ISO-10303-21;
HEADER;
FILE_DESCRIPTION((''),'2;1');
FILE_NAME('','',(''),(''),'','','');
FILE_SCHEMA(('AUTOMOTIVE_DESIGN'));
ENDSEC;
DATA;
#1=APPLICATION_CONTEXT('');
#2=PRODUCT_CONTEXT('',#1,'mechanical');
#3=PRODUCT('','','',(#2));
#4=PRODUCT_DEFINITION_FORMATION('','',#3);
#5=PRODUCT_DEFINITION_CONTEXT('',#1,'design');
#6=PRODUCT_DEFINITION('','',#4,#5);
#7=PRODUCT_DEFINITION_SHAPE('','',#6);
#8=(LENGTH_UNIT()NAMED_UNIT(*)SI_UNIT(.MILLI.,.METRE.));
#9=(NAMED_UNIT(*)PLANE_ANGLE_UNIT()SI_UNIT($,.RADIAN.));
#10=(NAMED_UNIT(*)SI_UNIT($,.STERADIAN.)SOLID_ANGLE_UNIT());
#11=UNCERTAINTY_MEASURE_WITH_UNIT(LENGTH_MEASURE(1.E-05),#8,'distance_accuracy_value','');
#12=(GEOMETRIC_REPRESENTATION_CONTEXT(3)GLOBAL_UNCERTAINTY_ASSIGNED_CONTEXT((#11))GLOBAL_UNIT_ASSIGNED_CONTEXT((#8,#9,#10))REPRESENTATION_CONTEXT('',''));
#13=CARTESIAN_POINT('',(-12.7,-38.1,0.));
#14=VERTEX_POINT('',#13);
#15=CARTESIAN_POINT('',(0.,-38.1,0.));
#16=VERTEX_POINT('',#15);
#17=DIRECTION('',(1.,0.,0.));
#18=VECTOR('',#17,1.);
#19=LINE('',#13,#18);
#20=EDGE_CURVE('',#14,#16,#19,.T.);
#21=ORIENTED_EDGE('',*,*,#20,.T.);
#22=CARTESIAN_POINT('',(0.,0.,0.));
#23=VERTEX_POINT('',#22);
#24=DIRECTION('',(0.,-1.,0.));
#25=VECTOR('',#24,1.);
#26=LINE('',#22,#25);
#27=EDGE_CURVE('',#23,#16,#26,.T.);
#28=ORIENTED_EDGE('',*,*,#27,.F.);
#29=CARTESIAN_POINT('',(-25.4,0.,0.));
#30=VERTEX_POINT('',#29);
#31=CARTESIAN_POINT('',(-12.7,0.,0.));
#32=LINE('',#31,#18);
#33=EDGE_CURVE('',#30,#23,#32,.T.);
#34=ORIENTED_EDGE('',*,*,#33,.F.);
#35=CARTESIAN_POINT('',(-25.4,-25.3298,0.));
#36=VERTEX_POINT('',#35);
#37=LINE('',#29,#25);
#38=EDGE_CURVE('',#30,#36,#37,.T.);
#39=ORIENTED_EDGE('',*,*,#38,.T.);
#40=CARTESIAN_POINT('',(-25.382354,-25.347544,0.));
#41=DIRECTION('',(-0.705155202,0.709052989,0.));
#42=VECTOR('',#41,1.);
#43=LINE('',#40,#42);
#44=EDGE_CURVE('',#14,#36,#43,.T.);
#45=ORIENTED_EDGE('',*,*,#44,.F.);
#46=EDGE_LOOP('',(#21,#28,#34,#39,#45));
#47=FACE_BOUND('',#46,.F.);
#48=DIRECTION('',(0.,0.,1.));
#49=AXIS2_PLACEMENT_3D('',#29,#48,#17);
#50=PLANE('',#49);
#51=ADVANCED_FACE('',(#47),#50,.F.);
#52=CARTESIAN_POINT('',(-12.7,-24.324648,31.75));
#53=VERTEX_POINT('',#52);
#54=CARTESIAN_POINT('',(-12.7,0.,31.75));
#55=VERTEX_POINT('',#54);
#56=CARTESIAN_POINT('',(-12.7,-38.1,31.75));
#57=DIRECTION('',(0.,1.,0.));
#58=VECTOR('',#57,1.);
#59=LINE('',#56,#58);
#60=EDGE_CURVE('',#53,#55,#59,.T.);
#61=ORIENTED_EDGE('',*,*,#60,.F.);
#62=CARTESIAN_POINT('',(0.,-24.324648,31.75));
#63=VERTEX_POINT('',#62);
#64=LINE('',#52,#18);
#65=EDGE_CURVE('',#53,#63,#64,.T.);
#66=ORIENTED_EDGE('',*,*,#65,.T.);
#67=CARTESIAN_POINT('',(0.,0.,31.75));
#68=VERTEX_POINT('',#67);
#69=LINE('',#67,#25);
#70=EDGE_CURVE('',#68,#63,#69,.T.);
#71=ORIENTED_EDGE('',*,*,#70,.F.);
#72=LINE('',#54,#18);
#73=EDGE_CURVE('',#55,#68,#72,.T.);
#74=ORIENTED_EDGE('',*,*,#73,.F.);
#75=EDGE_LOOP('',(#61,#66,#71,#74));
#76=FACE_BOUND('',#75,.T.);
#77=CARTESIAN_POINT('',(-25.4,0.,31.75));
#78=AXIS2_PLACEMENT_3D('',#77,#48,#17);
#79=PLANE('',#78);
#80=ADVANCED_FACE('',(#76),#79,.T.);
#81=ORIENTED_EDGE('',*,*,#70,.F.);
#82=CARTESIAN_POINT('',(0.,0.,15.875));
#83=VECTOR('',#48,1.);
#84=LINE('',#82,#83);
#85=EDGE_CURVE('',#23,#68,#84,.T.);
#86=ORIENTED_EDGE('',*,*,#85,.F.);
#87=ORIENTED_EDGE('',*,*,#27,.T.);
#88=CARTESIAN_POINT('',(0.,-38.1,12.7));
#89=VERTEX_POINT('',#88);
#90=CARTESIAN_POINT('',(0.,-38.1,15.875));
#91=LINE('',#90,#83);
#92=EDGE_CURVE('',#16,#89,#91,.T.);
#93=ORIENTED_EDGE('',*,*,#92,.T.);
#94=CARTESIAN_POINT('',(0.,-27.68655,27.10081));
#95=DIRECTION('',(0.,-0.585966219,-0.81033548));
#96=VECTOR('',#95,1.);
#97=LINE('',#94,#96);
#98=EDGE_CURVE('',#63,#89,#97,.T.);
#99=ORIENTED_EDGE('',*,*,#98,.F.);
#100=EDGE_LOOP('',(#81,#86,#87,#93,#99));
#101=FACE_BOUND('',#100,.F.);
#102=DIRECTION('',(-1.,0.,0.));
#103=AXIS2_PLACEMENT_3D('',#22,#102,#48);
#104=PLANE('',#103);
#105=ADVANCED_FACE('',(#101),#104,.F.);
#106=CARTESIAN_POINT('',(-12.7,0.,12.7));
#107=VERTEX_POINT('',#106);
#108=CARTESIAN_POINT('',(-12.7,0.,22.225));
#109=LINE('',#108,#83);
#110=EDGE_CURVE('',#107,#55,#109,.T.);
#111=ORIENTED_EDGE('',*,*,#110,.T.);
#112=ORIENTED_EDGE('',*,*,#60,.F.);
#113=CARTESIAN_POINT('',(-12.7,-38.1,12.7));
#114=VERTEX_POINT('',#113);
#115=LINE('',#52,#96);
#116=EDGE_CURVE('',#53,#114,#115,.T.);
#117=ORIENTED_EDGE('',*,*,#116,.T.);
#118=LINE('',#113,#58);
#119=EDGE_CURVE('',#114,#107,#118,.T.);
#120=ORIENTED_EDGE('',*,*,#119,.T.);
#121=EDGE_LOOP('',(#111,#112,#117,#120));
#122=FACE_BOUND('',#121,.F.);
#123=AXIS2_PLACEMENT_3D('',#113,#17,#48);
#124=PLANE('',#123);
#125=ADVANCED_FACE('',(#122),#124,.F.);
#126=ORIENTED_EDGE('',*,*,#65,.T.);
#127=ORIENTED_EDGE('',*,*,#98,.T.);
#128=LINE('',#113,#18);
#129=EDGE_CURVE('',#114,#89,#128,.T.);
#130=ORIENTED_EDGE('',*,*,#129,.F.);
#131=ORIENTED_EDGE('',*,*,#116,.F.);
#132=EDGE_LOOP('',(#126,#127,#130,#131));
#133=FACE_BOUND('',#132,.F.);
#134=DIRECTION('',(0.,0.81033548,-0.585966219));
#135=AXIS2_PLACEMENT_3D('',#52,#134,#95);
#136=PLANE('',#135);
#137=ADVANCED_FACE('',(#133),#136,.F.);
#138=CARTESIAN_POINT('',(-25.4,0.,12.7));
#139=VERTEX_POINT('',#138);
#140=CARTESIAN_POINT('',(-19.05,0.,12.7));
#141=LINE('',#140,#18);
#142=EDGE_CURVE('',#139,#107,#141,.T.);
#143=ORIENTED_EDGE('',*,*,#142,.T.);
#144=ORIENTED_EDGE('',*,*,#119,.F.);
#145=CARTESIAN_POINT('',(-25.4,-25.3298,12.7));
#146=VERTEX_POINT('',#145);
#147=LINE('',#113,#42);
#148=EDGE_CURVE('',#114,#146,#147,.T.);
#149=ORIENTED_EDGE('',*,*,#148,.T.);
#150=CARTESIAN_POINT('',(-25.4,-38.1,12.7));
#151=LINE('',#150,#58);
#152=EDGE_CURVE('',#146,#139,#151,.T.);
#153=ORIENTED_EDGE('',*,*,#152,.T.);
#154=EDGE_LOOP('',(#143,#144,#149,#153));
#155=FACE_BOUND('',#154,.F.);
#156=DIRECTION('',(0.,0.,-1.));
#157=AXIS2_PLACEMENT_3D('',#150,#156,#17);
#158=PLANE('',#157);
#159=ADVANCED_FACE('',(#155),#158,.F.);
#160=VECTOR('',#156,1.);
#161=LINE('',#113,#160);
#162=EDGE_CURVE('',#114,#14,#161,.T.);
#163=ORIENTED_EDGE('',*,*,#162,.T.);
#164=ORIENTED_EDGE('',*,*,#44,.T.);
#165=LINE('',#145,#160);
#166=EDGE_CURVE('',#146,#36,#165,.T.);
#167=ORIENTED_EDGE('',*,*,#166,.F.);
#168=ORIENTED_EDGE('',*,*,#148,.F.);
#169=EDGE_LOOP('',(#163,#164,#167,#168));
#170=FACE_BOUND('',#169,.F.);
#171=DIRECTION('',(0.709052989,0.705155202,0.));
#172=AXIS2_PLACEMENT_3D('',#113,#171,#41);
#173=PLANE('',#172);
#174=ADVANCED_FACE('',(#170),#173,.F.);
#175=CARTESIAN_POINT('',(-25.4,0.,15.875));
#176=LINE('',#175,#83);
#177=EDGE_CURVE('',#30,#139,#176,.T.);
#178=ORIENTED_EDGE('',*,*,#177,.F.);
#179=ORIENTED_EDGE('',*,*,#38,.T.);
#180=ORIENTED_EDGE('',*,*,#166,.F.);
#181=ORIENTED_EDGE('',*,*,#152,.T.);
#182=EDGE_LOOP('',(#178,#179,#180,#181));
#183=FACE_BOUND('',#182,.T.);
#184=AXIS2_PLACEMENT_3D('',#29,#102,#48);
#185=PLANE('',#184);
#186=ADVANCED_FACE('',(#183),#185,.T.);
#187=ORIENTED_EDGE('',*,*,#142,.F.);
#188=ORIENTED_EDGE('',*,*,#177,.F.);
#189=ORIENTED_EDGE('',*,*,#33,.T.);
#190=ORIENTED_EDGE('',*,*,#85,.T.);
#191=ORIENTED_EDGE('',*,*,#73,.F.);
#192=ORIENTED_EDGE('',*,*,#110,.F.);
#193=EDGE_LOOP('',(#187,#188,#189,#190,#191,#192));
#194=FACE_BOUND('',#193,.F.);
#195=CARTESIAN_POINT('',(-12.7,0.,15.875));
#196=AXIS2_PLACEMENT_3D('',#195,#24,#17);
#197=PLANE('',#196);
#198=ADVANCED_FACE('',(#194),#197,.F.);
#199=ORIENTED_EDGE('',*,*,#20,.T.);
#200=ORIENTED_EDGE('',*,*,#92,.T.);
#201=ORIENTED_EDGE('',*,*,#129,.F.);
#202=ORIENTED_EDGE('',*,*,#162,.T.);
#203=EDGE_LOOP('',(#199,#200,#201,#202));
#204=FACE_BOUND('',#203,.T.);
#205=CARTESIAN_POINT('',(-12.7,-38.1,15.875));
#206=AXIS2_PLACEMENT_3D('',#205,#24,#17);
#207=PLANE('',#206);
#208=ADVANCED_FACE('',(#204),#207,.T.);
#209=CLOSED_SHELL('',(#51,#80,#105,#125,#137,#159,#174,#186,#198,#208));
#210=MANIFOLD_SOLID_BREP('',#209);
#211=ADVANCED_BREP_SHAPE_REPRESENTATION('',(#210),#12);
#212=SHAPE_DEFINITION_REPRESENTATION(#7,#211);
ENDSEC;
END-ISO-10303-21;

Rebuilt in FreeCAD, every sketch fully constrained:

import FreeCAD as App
import Part
import Sketcher
Q = App.Units.Quantity

doc = App.newDocument("Part")
body = doc.addObject("PartDesign::Body", "Body")

# Sketch on XZ plane
sketch1 = doc.addObject("Sketcher::SketchObject", "Sketch")
body.addObject(sketch1)
sketch1.AttachmentSupport = (doc.XZ_Plane, [""])
sketch1.MapMode = "FlatFace"
sketch1.addGeometry([
    Part.LineSegment(App.Vector(-25, 32, 0), App.Vector(-25, 0, 0)),
    Part.LineSegment(App.Vector(-25, 0, 0), App.Vector(0, 0, 0)),
    Part.LineSegment(App.Vector(0, 0, 0), App.Vector(0, 32, 0)),
    Part.LineSegment(App.Vector(0, 32, 0), App.Vector(-25, 32, 0)),
], False)
sketch1.addConstraint([
    Sketcher.Constraint("Coincident", 0, 2, 1, 1),
    Sketcher.Constraint("Coincident", 1, 2, 2, 1),
    Sketcher.Constraint("Coincident", 2, 2, 3, 1),
    Sketcher.Constraint("Coincident", 3, 2, 0, 1),
    Sketcher.Constraint("Vertical", 0),
    Sketcher.Constraint("Horizontal", 1),
    Sketcher.Constraint("Vertical", 2),
    Sketcher.Constraint("Horizontal", 3),
    Sketcher.Constraint("Coincident", 1, 2, -1, 1),
    Sketcher.Constraint("DistanceX", 1, 1, 1, 2, Q("1 in")),
    Sketcher.Constraint("DistanceY", 0, 2, 0, 1, Q("1.25 in")),
])
pad1 = doc.addObject("PartDesign::Pad", "Pad")
body.addObject(pad1)
pad1.Profile = sketch1
pad1.Length = Q("1.5 in")

# Sketch on XZ plane
sketch2 = doc.addObject("Sketcher::SketchObject", "Sketch001")
body.addObject(sketch2)
sketch2.AttachmentSupport = (doc.XZ_Plane, [""])
sketch2.MapMode = "FlatFace"
sketch2.AttachmentOffset = App.Placement(App.Vector(0, 0, 1.5 * 25.4), App.Rotation())
sketch2.addGeometry([
    Part.LineSegment(App.Vector(-25, 32, 0), App.Vector(-25, 13, 0)),
    Part.LineSegment(App.Vector(-25, 13, 0), App.Vector(-13, 13, 0)),
    Part.LineSegment(App.Vector(-13, 13, 0), App.Vector(-13, 32, 0)),
    Part.LineSegment(App.Vector(-13, 32, 0), App.Vector(-25, 32, 0)),
], False)
sketch2.addConstraint([
    Sketcher.Constraint("Coincident", 0, 2, 1, 1),
    Sketcher.Constraint("Coincident", 1, 2, 2, 1),
    Sketcher.Constraint("Coincident", 2, 2, 3, 1),
    Sketcher.Constraint("Coincident", 3, 2, 0, 1),
    Sketcher.Constraint("Vertical", 0),
    Sketcher.Constraint("Horizontal", 1),
    Sketcher.Constraint("Vertical", 2),
    Sketcher.Constraint("Horizontal", 3),
    Sketcher.Constraint("DistanceX", 1, 1, 1, 2, Q("0.5 in")),
    Sketcher.Constraint("DistanceX", 0, 2, -1, 1, Q("1 in")),
    Sketcher.Constraint("DistanceY", 0, 2, 0, 1, Q("0.75 in")),
    Sketcher.Constraint("DistanceY", -1, 1, 0, 2, Q("0.5 in")),
])
pocket1 = doc.addObject("PartDesign::Pocket", "Pocket")
body.addObject(pocket1)
pocket1.Profile = sketch2
pocket1.Length = Q("1.5 in")

# Sketch on XY plane
sketch3 = doc.addObject("Sketcher::SketchObject", "Sketch002")
body.addObject(sketch3)
sketch3.AttachmentSupport = (doc.XY_Plane, [""])
sketch3.MapMode = "FlatFace"
sketch3.AttachmentOffset = App.Placement(App.Vector(0, 0, 0.5 * 25.4), App.Rotation())
sketch3.addGeometry([
    Part.LineSegment(App.Vector(-25, -38, 0), App.Vector(-13, -38, 0)),
    Part.LineSegment(App.Vector(-13, -38, 0), App.Vector(-25, -25, 0)),
    Part.LineSegment(App.Vector(-25, -25, 0), App.Vector(-25, -38, 0)),
], False)
sketch3.addConstraint([
    Sketcher.Constraint("Coincident", 0, 2, 1, 1),
    Sketcher.Constraint("Coincident", 1, 2, 2, 1),
    Sketcher.Constraint("Coincident", 2, 2, 0, 1),
    Sketcher.Constraint("Horizontal", 0),
    Sketcher.Constraint("Vertical", 2),
    Sketcher.Constraint("DistanceX", 0, 1, 0, 2, Q("0.5 in")),
    Sketcher.Constraint("DistanceX", 1, 2, -1, 1, Q("1 in")),
    Sketcher.Constraint("DistanceY", 0, 2, -1, 1, Q("1.5 in")),
    Sketcher.Constraint("DistanceY", 2, 2, 2, 1, Q("12.7702 mm")),
])
pocket2 = doc.addObject("PartDesign::Pocket", "Pocket001")
body.addObject(pocket2)
pocket2.Profile = sketch3
pocket2.Length = Q("1 in")

# Sketch on YZ plane
sketch4 = doc.addObject("Sketcher::SketchObject", "Sketch003")
body.addObject(sketch4)
sketch4.AttachmentSupport = (doc.YZ_Plane, [""])
sketch4.MapMode = "FlatFace"
sketch4.AttachmentOffset = App.Placement(App.Vector(0, 0, -0.5 * 25.4), App.Rotation())
sketch4.addGeometry([
    Part.LineSegment(App.Vector(-24, 32, 0), App.Vector(-38, 13, 0)),
    Part.LineSegment(App.Vector(-38, 13, 0), App.Vector(-38, 32, 0)),
    Part.LineSegment(App.Vector(-38, 32, 0), App.Vector(-24, 32, 0)),
], False)
sketch4.addConstraint([
    Sketcher.Constraint("Coincident", 0, 2, 1, 1),
    Sketcher.Constraint("Coincident", 1, 2, 2, 1),
    Sketcher.Constraint("Coincident", 2, 2, 0, 1),
    Sketcher.Constraint("Vertical", 1),
    Sketcher.Constraint("Horizontal", 2),
    Sketcher.Constraint("DistanceY", 1, 1, 1, 2, Q("0.75 in")),
    Sketcher.Constraint("DistanceX", 0, 2, -1, 1, Q("1.5 in")),
    Sketcher.Constraint("DistanceY", -1, 1, 0, 2, Q("0.5 in")),
    Sketcher.Constraint("Distance", 0, Q("23.508782 mm")),
])
pocket3 = doc.addObject("PartDesign::Pocket", "Pocket002")
body.addObject(pocket3)
pocket3.Profile = sketch4
pocket3.Length = Q("1 in")
pocket3.Reversed = True

doc.recompute()
